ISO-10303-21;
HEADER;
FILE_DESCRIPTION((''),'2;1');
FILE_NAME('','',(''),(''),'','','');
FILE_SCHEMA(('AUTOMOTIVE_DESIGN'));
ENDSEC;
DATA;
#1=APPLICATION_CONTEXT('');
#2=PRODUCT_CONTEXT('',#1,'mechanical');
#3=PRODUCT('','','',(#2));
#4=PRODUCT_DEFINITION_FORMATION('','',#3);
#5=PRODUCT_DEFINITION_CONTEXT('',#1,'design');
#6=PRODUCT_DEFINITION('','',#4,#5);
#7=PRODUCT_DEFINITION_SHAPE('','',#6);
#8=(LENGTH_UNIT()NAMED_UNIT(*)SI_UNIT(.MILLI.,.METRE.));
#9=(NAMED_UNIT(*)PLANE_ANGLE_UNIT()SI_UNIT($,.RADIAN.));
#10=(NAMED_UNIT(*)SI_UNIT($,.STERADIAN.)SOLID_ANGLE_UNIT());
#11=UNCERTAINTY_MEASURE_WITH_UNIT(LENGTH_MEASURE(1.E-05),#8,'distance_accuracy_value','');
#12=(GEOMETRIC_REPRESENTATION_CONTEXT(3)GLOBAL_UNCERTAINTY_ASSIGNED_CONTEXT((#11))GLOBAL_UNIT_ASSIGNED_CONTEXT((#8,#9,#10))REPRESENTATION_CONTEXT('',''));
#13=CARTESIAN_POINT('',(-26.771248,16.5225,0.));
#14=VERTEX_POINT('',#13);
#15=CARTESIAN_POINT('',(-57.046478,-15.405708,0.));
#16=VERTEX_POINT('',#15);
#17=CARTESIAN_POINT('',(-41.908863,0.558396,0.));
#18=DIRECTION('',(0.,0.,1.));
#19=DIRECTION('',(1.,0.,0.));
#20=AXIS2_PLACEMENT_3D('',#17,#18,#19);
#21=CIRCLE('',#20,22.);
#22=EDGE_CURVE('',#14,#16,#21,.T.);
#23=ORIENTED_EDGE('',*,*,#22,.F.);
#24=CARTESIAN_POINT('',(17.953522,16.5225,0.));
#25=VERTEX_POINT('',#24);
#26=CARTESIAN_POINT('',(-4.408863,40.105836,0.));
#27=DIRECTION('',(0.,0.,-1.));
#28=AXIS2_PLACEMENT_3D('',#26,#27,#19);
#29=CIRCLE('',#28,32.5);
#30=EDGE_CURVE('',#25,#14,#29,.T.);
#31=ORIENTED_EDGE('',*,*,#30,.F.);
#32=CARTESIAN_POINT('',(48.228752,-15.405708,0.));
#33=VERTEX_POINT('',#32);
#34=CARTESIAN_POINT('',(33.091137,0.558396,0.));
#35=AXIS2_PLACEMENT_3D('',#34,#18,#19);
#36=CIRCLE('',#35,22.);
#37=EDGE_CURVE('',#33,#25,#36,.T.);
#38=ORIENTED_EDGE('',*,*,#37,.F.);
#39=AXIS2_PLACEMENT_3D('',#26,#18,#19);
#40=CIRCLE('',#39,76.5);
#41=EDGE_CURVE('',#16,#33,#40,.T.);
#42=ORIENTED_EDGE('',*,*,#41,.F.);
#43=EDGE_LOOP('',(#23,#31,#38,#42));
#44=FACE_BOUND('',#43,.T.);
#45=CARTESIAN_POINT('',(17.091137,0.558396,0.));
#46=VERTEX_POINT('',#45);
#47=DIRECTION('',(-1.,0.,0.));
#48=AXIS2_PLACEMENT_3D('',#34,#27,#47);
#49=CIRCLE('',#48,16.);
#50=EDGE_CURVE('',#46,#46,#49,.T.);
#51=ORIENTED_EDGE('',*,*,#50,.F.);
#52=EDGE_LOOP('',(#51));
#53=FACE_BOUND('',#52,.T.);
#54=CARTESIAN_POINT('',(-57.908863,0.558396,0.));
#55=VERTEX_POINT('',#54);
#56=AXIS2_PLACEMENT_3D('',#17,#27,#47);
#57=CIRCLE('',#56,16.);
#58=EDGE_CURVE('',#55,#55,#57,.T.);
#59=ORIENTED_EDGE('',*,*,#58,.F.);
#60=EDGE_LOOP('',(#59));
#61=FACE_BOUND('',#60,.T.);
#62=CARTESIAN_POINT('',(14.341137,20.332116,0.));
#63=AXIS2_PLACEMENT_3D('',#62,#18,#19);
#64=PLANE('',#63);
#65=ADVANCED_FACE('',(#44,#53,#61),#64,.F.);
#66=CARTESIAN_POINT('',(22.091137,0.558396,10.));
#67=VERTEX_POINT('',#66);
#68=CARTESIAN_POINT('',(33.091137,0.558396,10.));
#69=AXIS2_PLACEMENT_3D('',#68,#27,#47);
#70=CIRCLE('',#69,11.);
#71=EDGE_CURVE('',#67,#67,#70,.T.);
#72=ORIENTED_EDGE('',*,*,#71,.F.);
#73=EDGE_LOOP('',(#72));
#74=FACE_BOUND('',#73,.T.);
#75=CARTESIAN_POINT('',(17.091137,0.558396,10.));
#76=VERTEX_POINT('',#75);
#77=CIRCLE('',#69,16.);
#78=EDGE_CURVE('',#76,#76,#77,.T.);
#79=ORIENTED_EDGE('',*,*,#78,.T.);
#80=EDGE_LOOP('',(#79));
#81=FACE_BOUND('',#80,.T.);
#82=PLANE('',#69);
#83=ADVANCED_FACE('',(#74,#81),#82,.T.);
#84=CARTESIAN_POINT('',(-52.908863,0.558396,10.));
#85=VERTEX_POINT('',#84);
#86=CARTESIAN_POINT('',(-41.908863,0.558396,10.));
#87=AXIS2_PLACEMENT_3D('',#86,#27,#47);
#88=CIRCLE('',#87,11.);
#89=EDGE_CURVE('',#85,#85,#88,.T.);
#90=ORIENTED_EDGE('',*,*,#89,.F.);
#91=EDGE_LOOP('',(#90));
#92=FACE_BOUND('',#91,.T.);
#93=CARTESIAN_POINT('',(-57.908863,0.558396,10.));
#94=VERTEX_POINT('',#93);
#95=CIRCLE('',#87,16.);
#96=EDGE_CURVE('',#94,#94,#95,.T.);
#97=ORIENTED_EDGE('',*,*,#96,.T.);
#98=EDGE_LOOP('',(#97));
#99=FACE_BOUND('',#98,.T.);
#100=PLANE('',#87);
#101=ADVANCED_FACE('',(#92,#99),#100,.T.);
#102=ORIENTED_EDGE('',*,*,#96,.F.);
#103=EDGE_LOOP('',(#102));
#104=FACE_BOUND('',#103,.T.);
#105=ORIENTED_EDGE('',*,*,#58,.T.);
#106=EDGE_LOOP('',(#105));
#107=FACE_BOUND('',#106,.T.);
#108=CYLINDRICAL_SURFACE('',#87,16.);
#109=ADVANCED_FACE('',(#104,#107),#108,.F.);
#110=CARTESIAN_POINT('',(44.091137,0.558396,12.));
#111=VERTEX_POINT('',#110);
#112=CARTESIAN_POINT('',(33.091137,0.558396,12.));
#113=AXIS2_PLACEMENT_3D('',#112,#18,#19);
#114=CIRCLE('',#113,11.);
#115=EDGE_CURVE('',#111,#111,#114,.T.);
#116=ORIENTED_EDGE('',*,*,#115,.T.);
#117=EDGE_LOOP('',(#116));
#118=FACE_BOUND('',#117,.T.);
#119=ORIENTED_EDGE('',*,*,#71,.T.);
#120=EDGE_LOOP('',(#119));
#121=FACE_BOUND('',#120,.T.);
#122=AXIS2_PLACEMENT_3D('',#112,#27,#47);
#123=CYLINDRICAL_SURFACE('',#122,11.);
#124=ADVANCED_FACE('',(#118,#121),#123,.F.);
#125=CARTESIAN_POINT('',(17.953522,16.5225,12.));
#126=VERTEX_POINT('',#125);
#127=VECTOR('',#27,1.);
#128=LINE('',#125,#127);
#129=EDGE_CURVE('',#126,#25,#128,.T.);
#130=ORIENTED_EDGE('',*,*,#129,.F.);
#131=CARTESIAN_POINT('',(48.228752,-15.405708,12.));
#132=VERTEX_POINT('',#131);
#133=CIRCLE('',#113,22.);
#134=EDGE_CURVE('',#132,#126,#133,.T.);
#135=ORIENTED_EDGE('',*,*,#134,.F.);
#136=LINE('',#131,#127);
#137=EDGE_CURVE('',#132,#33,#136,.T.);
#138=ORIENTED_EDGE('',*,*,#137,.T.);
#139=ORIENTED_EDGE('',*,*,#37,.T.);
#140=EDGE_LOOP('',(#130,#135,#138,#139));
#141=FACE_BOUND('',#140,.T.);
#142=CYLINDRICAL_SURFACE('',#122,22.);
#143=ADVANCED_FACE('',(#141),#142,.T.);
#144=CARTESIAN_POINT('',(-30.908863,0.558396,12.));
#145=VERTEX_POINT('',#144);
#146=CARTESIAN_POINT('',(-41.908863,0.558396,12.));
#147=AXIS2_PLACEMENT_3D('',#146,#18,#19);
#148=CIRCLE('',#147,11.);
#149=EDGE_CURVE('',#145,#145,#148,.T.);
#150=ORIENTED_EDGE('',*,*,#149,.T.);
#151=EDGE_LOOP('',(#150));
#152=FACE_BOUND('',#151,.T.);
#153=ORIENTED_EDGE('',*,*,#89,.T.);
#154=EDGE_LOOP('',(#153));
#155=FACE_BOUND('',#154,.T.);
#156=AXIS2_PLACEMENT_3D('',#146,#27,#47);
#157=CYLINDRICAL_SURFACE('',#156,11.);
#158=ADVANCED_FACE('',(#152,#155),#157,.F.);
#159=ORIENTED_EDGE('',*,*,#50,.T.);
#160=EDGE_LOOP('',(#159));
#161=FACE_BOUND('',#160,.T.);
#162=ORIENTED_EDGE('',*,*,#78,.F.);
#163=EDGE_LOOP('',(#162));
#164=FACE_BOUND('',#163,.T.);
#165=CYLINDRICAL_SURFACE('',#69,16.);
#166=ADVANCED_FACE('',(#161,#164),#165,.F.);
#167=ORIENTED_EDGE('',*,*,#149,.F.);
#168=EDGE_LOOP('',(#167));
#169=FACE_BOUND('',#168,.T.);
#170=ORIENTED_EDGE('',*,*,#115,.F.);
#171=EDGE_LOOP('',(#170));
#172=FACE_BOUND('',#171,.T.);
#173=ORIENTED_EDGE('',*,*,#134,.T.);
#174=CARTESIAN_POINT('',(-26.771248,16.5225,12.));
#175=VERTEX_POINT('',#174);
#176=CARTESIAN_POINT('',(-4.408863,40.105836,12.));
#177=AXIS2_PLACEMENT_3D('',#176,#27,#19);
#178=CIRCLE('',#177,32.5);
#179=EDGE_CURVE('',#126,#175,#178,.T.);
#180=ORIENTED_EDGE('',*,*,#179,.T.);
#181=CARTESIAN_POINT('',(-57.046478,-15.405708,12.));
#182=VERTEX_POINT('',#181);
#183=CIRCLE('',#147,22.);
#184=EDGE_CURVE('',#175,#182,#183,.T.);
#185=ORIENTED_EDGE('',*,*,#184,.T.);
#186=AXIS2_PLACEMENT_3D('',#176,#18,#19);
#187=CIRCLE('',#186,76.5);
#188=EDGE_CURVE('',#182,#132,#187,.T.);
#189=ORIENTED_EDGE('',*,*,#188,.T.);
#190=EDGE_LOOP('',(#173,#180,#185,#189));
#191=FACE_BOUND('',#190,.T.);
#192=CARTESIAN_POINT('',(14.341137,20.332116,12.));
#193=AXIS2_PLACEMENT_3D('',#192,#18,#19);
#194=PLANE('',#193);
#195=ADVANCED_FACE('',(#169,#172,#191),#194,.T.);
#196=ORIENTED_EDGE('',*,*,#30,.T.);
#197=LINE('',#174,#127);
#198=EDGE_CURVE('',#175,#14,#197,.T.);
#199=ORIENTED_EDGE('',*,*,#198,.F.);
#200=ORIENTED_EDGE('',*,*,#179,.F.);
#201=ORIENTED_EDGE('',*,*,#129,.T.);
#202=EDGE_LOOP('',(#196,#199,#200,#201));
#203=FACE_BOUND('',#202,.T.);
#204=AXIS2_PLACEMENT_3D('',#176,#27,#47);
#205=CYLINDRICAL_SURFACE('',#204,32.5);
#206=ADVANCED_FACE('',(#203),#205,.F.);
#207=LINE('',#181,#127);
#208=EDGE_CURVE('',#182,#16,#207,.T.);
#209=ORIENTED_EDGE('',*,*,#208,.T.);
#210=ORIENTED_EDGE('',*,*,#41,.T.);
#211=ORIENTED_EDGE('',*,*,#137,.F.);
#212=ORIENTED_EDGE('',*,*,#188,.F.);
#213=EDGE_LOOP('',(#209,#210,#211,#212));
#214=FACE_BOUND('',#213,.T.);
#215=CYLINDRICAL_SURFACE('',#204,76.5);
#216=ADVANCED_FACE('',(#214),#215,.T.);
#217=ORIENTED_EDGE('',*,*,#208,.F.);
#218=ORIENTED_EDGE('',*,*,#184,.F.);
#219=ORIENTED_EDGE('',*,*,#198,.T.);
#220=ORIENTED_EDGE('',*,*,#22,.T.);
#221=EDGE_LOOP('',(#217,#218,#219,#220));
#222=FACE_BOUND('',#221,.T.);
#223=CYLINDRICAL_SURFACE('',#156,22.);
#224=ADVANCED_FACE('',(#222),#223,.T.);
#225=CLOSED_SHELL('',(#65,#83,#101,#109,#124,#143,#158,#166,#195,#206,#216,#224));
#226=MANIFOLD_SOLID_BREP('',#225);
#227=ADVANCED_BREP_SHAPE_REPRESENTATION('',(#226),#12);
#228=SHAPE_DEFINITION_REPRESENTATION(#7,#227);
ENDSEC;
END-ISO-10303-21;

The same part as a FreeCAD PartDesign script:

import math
import FreeCAD as App
import Part
import Sketcher
Q = App.Units.Quantity

doc = App.newDocument("Part")
params = doc.addObject("Spreadsheet::Sheet", "Params")
for row, (alias, value) in enumerate([
    ("sketch1_diameter", "22 mm"),
    ("sketch1_radius", "22 mm"),
    ("sketch1_radius2", "76.5 mm"),
    ("pad1_length", "12 mm"),
    ("sketch2_diameter", "32 mm"),
    ("pocket1_length", "10 mm"),
], start=1):
    params.set(f"A{row}", alias)
    params.set(f"B{row}", "=" + value)
    params.setAlias(f"B{row}", alias)

body = doc.addObject("PartDesign::Body", "Body")

# Sketch on XY plane
sketch1 = body.newObject("Sketcher::SketchObject", "Sketch")
sketch1.AttachmentSupport = (doc.getObject("XY_Plane"), [""])
sketch1.MapMode = "FlatFace"
sketch1.addGeometry([
    Part.ArcOfCircle(Part.Circle(App.Vector(-41.908863, 0.558396, 0), App.Vector(0, 0, 1), 22), math.radians(46.522206), math.radians(226.522206)),  # 0
    Part.ArcOfCircle(Part.Circle(App.Vector(-4.408863, 40.105836, 0), App.Vector(0, 0, 1), 76.5), math.radians(-133.477794), math.radians(-46.522206)),  # 1
    Part.ArcOfCircle(Part.Circle(App.Vector(33.091137, 0.558396, 0), App.Vector(0, 0, 1), 22), math.radians(-46.522206), math.radians(133.477794)),  # 2
    Part.ArcOfCircle(Part.Circle(App.Vector(-4.408863, 40.105836, 0), App.Vector(0, 0, 1), 32.5), math.radians(-133.477794), math.radians(-46.522206)),  # 3
    Part.Circle(App.Vector(-41.908863, 0.558396, 0), App.Vector(0, 0, 1), 11),  # 4
    Part.Circle(App.Vector(33.091137, 0.558396, 0), App.Vector(0, 0, 1), 11),  # 5
], False)
sketch1.addConstraint([
    Sketcher.Constraint("Tangent", 0, 2, 1, 1),
    Sketcher.Constraint("Tangent", 1, 2, 2, 1),
    Sketcher.Constraint("Tangent", 2, 2, 3, 2),
    Sketcher.Constraint("Tangent", 3, 1, 0, 1),
    Sketcher.Constraint("Coincident", 3, 3, 1, 3),
    Sketcher.Constraint("Coincident", 4, 3, 0, 3),
    Sketcher.Constraint("Coincident", 5, 3, 2, 3),
    Sketcher.Constraint("Equal", 4, 5),
    Sketcher.Constraint("Horizontal", 0, 3, 2, 3),
    Sketcher.Constraint("Diameter", 4, Q("22 mm")),
    Sketcher.Constraint("Radius", 0, Q("22 mm")),
    Sketcher.Constraint("Radius", 1, Q("76.5 mm")),
    Sketcher.Constraint("DistanceX", 0, 3, 2, 3, Q("75 mm")),
    Sketcher.Constraint("DistanceY", -1, 1, 2, 2, Q("16.5225 mm")),
    Sketcher.Constraint("DistanceX", -1, 1, 1, 2, Q("48.228752 mm")),
])
sketch1.setExpression("Constraints[9]", "Params.sketch1_diameter")
sketch1.setExpression("Constraints[10]", "Params.sketch1_radius")
sketch1.setExpression("Constraints[11]", "Params.sketch1_radius2")
pad1 = body.newObject("PartDesign::Pad", "Pad")
pad1.Profile = sketch1
pad1.setExpression("Length", "Params.pad1_length")

# Sketch on XY plane
sketch2 = body.newObject("Sketcher::SketchObject", "Sketch001")
sketch2.AttachmentSupport = (doc.getObject("XY_Plane"), [""])
sketch2.MapMode = "FlatFace"
sketch2.addGeometry([
    Part.Circle(App.Vector(-41.908863, 0.558396, 0), App.Vector(0, 0, 1), 16),
    Part.Circle(App.Vector(33.091137, 0.558396, 0), App.Vector(0, 0, 1), 16),
], False)
sketch2.addConstraint([
    Sketcher.Constraint("Equal", 0, 1),
    Sketcher.Constraint("Horizontal", 0, 3, 1, 3),
    Sketcher.Constraint("Diameter", 0, Q("32 mm")),
    Sketcher.Constraint("DistanceX", 0, 3, 1, 3, Q("75 mm")),
    Sketcher.Constraint("DistanceX", 0, 3, -1, 1, Q("41.908863 mm")),
    Sketcher.Constraint("DistanceY", -1, 1, 0, 3, Q("0.558396 mm")),
])
sketch2.setExpression("Constraints[2]", "Params.sketch2_diameter")
pocket1 = body.newObject("PartDesign::Pocket", "Pocket")
pocket1.Profile = sketch2
pocket1.setExpression("Length", "Params.pocket1_length")
pocket1.Reversed = True

doc.recompute()
